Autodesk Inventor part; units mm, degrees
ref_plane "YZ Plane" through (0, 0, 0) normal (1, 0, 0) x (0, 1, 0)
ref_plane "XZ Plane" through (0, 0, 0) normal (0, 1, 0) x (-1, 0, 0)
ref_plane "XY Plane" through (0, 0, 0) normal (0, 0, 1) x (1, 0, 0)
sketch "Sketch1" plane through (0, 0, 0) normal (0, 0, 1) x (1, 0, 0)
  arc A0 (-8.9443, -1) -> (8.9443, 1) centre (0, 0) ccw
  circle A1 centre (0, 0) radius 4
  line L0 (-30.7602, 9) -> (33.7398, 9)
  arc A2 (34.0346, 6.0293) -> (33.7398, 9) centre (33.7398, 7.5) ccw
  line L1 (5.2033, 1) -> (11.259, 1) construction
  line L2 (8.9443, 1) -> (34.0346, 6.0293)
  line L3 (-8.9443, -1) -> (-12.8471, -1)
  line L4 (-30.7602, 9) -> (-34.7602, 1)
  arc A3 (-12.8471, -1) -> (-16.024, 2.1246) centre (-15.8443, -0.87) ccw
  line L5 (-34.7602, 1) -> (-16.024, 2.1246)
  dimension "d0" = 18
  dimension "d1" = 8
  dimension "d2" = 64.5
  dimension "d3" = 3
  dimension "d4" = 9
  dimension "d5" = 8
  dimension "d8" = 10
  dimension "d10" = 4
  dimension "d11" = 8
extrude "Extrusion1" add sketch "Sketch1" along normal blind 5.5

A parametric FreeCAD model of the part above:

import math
import FreeCAD as App
import Part
import Sketcher

V = App.Vector
Q = App.Units.Quantity

doc = App.newDocument("Part")
body = doc.addObject("PartDesign::Body", "Body")

# Sketch on XY plane
sketch1 = body.newObject("Sketcher::SketchObject", "Sketch")
sketch1.AttachmentSupport = (doc.getObject("XY_Plane"), [""])
sketch1.MapMode = "FlatFace"
sketch1.addGeometry([
    Part.LineSegment(V(-12.8, -1, 0), V(-8.9, -1, 0)),  # 0
    Part.ArcOfCircle(Part.Circle(V(0, 0, 0), V(0, 0, 1), 9), math.radians(-174), math.radians(6)),  # 1
    Part.LineSegment(V(8.9, 1, 0), V(34, 6, 0)),  # 2
    Part.ArcOfCircle(Part.Circle(V(33.7, 7.5, 0), V(0, 0, 1), 1.5), math.radians(-79), math.radians(90)),  # 3
    Part.LineSegment(V(33.7, 9, 0), V(-30.8, 9, 0)),  # 4
    Part.LineSegment(V(-30.8, 9, 0), V(-34.8, 1, 0)),  # 5
    Part.LineSegment(V(-34.8, 1, 0), V(-16, 2.1, 0)),  # 6
    Part.ArcOfCircle(Part.Circle(V(-15.8, -0.9, 0), V(0, 0, 1), 3), math.radians(-2), math.radians(93)),  # 7
    Part.Circle(V(0, 0, 0), V(0, 0, 1), 4),  # 8
], False)
sketch1.addConstraint([
    Sketcher.Constraint("Coincident", 0, 2, 1, 1),
    Sketcher.Constraint("Coincident", 1, 2, 2, 1),
    Sketcher.Constraint("Tangent", 2, 2, 3, 1),
    Sketcher.Constraint("Tangent", 3, 2, 4, 1),
    Sketcher.Constraint("Coincident", 4, 2, 5, 1),
    Sketcher.Constraint("Coincident", 5, 2, 6, 1),
    Sketcher.Constraint("Tangent", 6, 2, 7, 2),
    Sketcher.Constraint("Coincident", 7, 1, 0, 1),
    Sketcher.Constraint("Horizontal", 0),
    Sketcher.Constraint("Horizontal", 4),
    Sketcher.Constraint("Coincident", 1, 3, -1, 1),
    Sketcher.Constraint("Coincident", 8, 3, -1, 1),
    Sketcher.Constraint("Horizontal", 1, 2, 5, 2),
    Sketcher.Constraint("Diameter", 8, Q("8 mm")),
    Sketcher.Constraint("Radius", 1, Q("9 mm")),
    Sketcher.Constraint("Radius", 7, Q("3 mm")),
    Sketcher.Constraint("Radius", 3, Q("1.5 mm")),
    Sketcher.Constraint("DistanceX", 4, 2, 4, 1, Q("64.5 mm")),
    Sketcher.Constraint("DistanceY", -1, 1, 3, 2, Q("9 mm")),
    Sketcher.Constraint("DistanceY", 1, 2, 3, 2, Q("8 mm")),
    Sketcher.Constraint("DistanceY", 0, 2, 4, 2, Q("10 mm")),
    Sketcher.Constraint("DistanceX", 5, 2, 4, 2, Q("4 mm")),
    Sketcher.Constraint("DistanceX", 7, 3, 0, 2, Q("6.9 mm")),
    Sketcher.Constraint("Distance", 6, Q("18.77 mm")),
    Sketcher.Constraint("DistanceY", 7, 3, -1, 1, Q("0.87 mm")),
])
pad1 = body.newObject("PartDesign::Pad", "Pad")
pad1.Profile = sketch1
pad1.Length = 5.5

doc.recompute()
